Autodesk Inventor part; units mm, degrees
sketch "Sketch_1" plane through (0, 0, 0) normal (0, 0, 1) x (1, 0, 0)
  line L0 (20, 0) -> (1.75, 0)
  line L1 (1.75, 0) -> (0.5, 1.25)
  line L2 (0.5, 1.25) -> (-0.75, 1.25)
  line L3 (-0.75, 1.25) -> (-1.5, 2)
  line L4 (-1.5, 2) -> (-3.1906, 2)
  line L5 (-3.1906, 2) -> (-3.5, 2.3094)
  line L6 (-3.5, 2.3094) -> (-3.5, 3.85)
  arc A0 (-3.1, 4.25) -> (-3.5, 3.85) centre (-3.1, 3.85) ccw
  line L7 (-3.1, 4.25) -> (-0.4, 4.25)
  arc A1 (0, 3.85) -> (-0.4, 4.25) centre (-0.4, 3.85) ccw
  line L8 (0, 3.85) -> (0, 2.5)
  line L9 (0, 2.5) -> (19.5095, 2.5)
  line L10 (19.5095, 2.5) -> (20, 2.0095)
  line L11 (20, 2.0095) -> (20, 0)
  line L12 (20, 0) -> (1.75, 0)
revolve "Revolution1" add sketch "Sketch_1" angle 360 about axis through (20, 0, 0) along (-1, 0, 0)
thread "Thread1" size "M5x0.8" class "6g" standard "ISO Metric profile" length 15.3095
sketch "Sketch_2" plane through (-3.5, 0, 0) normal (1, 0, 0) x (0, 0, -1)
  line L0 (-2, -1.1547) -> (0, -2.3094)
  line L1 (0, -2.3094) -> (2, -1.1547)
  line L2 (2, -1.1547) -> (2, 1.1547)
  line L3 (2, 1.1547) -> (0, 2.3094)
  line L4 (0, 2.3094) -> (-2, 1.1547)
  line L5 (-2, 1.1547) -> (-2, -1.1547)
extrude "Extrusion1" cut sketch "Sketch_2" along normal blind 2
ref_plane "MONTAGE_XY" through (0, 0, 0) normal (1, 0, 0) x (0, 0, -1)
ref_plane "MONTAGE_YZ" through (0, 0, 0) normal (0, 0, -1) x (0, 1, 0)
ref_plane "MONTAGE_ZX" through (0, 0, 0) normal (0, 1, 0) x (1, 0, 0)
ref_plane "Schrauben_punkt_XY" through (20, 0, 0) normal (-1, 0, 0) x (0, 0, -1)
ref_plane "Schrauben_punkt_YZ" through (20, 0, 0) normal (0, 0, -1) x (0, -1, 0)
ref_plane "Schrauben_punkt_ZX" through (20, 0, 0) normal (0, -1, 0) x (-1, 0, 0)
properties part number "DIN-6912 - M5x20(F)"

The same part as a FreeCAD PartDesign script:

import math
import FreeCAD as App
import Part
import Sketcher
from FreeCAD import Vector
Q = App.Units.Quantity


def add_polygon(sketch, points):
    """Adds a closed chain of lines whose ends are joined by coincident constraints."""
    first, n = sketch.GeometryCount, len(points)
    for a, b in zip(points, points[1:] + points[:1]):
        sketch.addGeometry(Part.LineSegment(App.Vector(*a, 0), App.Vector(*b, 0)), False)
    for i in range(n):
        sketch.addConstraint(Sketcher.Constraint("Coincident", first + i, 2, first + (i + 1) % n, 1))

doc = App.newDocument("Part")
params = doc.addObject("Spreadsheet::Sheet", "Params")
for row, (alias, value) in enumerate([
    ("sketch1_radius", "0.4 mm"),
    ("sketch1_width", "2.7 mm"),
    ("sketch1_width2", "18.25 mm"),
    ("sketch1_height", "1.35 mm"),
    ("revolution_angle", "360 deg"),
    ("pocket1_length", "2 mm"),
], start=1):
    params.set(f"A{row}", alias)
    params.set(f"B{row}", "=" + value)
    params.setAlias(f"B{row}", alias)

body = doc.addObject("PartDesign::Body", "Body")

sketch1 = body.newObject("Sketcher::SketchObject", "Sketch")
sketch1.AttachmentSupport = (doc.getObject("XY_Plane"), [""])
sketch1.MapMode = "FlatFace"
sketch1.addGeometry([
    Part.LineSegment(Vector(1.75, 0, 0), Vector(20, 0, 0)),
    Part.LineSegment(Vector(20, 0, 0), Vector(20, 2.01, 0)),
    Part.LineSegment(Vector(20, 2.01, 0), Vector(19.51, 2.5, 0)),
    Part.LineSegment(Vector(19.51, 2.5, 0), Vector(0, 2.5, 0)),
    Part.LineSegment(Vector(0, 2.5, 0), Vector(0, 3.85, 0)),
    Part.ArcOfCircle(Part.Circle(Vector(-0.4, 3.85, 0), Vector(0, 0, 1), 0.4), math.radians(0), math.radians(90)),
    Part.LineSegment(Vector(-0.4, 4.25, 0), Vector(-3.1, 4.25, 0)),
    Part.ArcOfCircle(Part.Circle(Vector(-3.1, 3.85, 0), Vector(0, 0, 1), 0.4), math.radians(90), math.radians(180)),
    Part.LineSegment(Vector(-3.5, 3.85, 0), Vector(-3.5, 2.31, 0)),
    Part.LineSegment(Vector(-3.5, 2.31, 0), Vector(-3.19, 2, 0)),
    Part.LineSegment(Vector(-3.19, 2, 0), Vector(-1.5, 2, 0)),
    Part.LineSegment(Vector(-1.5, 2, 0), Vector(-0.75, 1.25, 0)),
    Part.LineSegment(Vector(-0.75, 1.25, 0), Vector(0.5, 1.25, 0)),
    Part.LineSegment(Vector(0.5, 1.25, 0), Vector(1.75, 0, 0)),
], False)
sketch1.addConstraint([
    Sketcher.Constraint("Coincident", 0, 2, 1, 1),
    Sketcher.Constraint("Coincident", 1, 2, 2, 1),
    Sketcher.Constraint("Coincident", 2, 2, 3, 1),
    Sketcher.Constraint("Coincident", 3, 2, 4, 1),
    Sketcher.Constraint("Tangent", 4, 2, 5, 1),
    Sketcher.Constraint("Tangent", 5, 2, 6, 1),
    Sketcher.Constraint("Tangent", 6, 2, 7, 1),
    Sketcher.Constraint("Tangent", 7, 2, 8, 1),
    Sketcher.Constraint("Coincident", 8, 2, 9, 1),
    Sketcher.Constraint("Coincident", 9, 2, 10, 1),
    Sketcher.Constraint("Coincident", 10, 2, 11, 1),
    Sketcher.Constraint("Coincident", 11, 2, 12, 1),
    Sketcher.Constraint("Coincident", 12, 2, 13, 1),
    Sketcher.Constraint("Coincident", 13, 2, 0, 1),
    Sketcher.Constraint("Horizontal", 0),
    Sketcher.Constraint("Vertical", 1),
    Sketcher.Constraint("Horizontal", 3),
    Sketcher.Constraint("Vertical", 4),
    Sketcher.Constraint("Horizontal", 6),
    Sketcher.Constraint("Vertical", 8),
    Sketcher.Constraint("Horizontal", 10),
    Sketcher.Constraint("Horizontal", 12),
    Sketcher.Constraint("Equal", 5, 7),
    Sketcher.Constraint("PointOnObject", 0, 2, -1),
    Sketcher.Constraint("PointOnObject", 3, 2, -2),
    Sketcher.Constraint("Parallel", 2, 9),
    Sketcher.Constraint("Parallel", 9, 11),
    Sketcher.Constraint("Parallel", 11, 13),
    Sketcher.Constraint("Radius", 5, Q("0.4 mm")),
    Sketcher.Constraint("Angle", 2, Q("135 deg")),
    Sketcher.Constraint("DistanceX", 6, 2, 6, 1, Q("2.7 mm")),
    Sketcher.Constraint("DistanceX", -1, 1, 0, 2, Q("20 mm")),
    Sketcher.Constraint("DistanceY", -1, 1, 9, 2, Q("2 mm")),
    Sketcher.Constraint("DistanceX", 8, 2, 10, 2, Q("2 mm")),
    Sketcher.Constraint("DistanceX", 10, 2, 12, 2, Q("2 mm")),
    Sketcher.Constraint("DistanceX", 0, 1, 0, 2, Q("18.25 mm")),
    Sketcher.Constraint("DistanceY", 4, 1, 4, 2, Q("1.35 mm")),
    Sketcher.Constraint("DistanceY", -1, 1, 2, 2, Q("2.5 mm")),
    Sketcher.Constraint("DistanceX", 3, 2, 3, 1, Q("19.5095 mm")),
    Sketcher.Constraint("DistanceX", 10, 1, 10, 2, Q("1.6906 mm")),
])
sketch1.setExpression("Constraints[28]", "Params.sketch1_radius")
sketch1.setExpression("Constraints[30]", "Params.sketch1_width")
sketch1.setExpression("Constraints[35]", "Params.sketch1_width2")
sketch1.setExpression("Constraints[36]", "Params.sketch1_height")
revolution = body.newObject("PartDesign::Revolution", "Revolution")
revolution.Profile = sketch1
revolution.ReferenceAxis = (sketch1, ["H_Axis"])
revolution.setExpression("Angle", "Params.revolution_angle")

sketch2 = body.newObject("Sketcher::SketchObject", "Sketch001")
sketch2.AttachmentSupport = (doc.getObject("YZ_Plane"), [""])
sketch2.MapMode = "FlatFace"
sketch2.AttachmentOffset = App.Placement(Vector(0, 0, -3.5), App.Rotation())
add_polygon(sketch2, [(1.2, 2), (-1.2, 2), (-2.3, 0), (-1.2, -2), (1.2, -2), (2.3, 0)])
sketch2.addConstraint([
    Sketcher.Constraint("Horizontal", 0),
    Sketcher.Constraint("Horizontal", 3),
    Sketcher.Constraint("Symmetric", 0, 2, 3, 2, -1, 1),
    Sketcher.Constraint("Symmetric", 1, 2, 4, 2, -1, 1),
    Sketcher.Constraint("PointOnObject", 1, 2, -1),
    Sketcher.Constraint("Parallel", 2, 5),
    Sketcher.Constraint("Vertical", 0, 2, 2, 2),
    Sketcher.Constraint("Angle", 1, Q("-120 deg")),
    Sketcher.Constraint("DistanceY", -1, 1, 0, 2, Q("2 mm")),
    Sketcher.Constraint("DistanceX", 0, 2, 0, 1, Q("2.3094 mm")),
])
pocket1 = body.newObject("PartDesign::Pocket", "Pocket")
pocket1.Profile = sketch2
pocket1.setExpression("Length", "Params.pocket1_length")
pocket1.Reversed = True

doc.recompute()
